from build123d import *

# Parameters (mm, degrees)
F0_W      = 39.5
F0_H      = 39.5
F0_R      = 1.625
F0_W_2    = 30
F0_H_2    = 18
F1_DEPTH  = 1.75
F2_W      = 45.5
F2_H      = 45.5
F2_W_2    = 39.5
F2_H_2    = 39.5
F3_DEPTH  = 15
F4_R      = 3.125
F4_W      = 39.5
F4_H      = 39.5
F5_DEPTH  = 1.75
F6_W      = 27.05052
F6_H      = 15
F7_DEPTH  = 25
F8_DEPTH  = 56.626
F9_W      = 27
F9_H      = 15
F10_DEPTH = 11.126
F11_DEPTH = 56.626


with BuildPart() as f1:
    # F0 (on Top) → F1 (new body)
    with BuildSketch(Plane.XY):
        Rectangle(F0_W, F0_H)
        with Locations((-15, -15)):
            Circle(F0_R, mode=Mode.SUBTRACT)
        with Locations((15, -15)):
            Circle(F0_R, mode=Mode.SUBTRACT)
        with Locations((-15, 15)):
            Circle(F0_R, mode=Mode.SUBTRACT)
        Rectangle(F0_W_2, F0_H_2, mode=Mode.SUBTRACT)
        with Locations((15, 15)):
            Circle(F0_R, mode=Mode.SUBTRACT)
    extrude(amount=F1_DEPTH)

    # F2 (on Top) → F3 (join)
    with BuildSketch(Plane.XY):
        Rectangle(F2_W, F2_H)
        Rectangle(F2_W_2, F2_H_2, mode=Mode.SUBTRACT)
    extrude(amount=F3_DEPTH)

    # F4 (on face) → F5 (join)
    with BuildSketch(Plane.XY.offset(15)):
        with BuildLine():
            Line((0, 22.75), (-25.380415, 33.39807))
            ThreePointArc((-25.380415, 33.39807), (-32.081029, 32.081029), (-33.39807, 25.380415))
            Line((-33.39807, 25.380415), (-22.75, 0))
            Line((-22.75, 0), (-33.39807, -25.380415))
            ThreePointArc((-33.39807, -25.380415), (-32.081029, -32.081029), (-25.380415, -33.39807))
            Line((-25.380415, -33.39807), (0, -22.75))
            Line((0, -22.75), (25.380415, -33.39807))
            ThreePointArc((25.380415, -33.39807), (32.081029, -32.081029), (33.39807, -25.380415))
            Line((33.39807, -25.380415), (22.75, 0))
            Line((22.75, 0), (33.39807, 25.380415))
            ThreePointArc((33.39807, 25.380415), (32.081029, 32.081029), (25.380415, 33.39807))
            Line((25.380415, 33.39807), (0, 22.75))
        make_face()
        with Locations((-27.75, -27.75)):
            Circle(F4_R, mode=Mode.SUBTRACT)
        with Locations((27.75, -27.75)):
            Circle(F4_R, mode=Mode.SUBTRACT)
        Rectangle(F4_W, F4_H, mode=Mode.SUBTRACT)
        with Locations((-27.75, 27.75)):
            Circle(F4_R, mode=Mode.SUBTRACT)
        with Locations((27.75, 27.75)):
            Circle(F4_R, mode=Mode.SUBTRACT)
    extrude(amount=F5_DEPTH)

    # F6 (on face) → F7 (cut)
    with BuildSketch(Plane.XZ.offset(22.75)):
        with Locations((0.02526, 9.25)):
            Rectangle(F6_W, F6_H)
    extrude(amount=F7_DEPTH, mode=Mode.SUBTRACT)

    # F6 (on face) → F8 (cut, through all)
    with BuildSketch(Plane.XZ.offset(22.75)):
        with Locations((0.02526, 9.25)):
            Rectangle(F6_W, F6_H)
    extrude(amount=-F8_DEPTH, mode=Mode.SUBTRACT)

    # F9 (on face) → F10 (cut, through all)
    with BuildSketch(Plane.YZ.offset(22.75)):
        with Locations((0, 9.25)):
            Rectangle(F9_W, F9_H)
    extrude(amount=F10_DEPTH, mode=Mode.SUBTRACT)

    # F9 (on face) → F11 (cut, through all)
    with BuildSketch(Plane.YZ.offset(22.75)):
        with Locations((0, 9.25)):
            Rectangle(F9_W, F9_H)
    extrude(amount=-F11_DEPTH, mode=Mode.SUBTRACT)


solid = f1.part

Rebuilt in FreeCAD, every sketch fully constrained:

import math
import FreeCAD as App
import Part
import Sketcher

doc = App.newDocument("Part")
body = doc.addObject("PartDesign::Body", "Body")

sketch1 = body.newObject("Sketcher::SketchObject", "Sketch")
sketch1.AttachmentSupport = (doc.getObject("XY_Plane"), [""])
sketch1.MapMode = "FlatFace"
sketch1.addGeometry([
    Part.LineSegment(App.Vector(-19.8, 19.8, 0), App.Vector(-19.8, -19.8, 0)),
    Part.LineSegment(App.Vector(-19.8, -19.8, 0), App.Vector(19.8, -19.8, 0)),
    Part.LineSegment(App.Vector(19.8, -19.8, 0), App.Vector(19.8, 19.8, 0)),
    Part.LineSegment(App.Vector(19.8, 19.8, 0), App.Vector(-19.8, 19.8, 0)),
    Part.Circle(App.Vector(-15, -15, 0), App.Vector(0, 0, 1), 1.6),
    Part.Circle(App.Vector(15, -15, 0), App.Vector(0, 0, 1), 1.6),
    Part.Circle(App.Vector(-15, 15, 0), App.Vector(0, 0, 1), 1.6),
    Part.LineSegment(App.Vector(15, -9, 0), App.Vector(-15, -9, 0)),
    Part.LineSegment(App.Vector(-15, -9, 0), App.Vector(-15, 9, 0)),
    Part.LineSegment(App.Vector(-15, 9, 0), App.Vector(15, 9, 0)),
    Part.LineSegment(App.Vector(15, 9, 0), App.Vector(15, -9, 0)),
    Part.Circle(App.Vector(15, 15, 0), App.Vector(0, 0, 1), 1.6),
], False)
sketch1.addConstraint([
    Sketcher.Constraint("Coincident", 0, 2, 1, 1),
    Sketcher.Constraint("Coincident", 1, 2, 2, 1),
    Sketcher.Constraint("Coincident", 2, 2, 3, 1),
    Sketcher.Constraint("Coincident", 3, 2, 0, 1),
    Sketcher.Constraint("Coincident", 7, 2, 8, 1),
    Sketcher.Constraint("Coincident", 8, 2, 9, 1),
    Sketcher.Constraint("Coincident", 9, 2, 10, 1),
    Sketcher.Constraint("Coincident", 10, 2, 7, 1),
    Sketcher.Constraint("Vertical", 0),
    Sketcher.Constraint("Horizontal", 1),
    Sketcher.Constraint("Vertical", 2),
    Sketcher.Constraint("Horizontal", 3),
    Sketcher.Constraint("Horizontal", 7),
    Sketcher.Constraint("Vertical", 8),
    Sketcher.Constraint("Horizontal", 9),
    Sketcher.Constraint("Vertical", 10),
    Sketcher.Constraint("Equal", 4, 5),
    Sketcher.Constraint("Equal", 5, 6),
    Sketcher.Constraint("Equal", 6, 11),
    Sketcher.Constraint("Symmetric", 5, 3, 6, 3, -1, 1),
    Sketcher.Constraint("Symmetric", 4, 3, 11, 3, -1, 1),
    Sketcher.Constraint("Symmetric", 0, 2, 2, 2, -1, 1),
    Sketcher.Constraint("Symmetric", 7, 2, 9, 2, -1, 1),
    Sketcher.Constraint("Symmetric", 4, 3, 5, 3, -2),
    Sketcher.Constraint("Vertical", 6, 3, 7, 2),
    Sketcher.Constraint("Equal", 3, 0),
    Sketcher.Constraint("Diameter", 4, 3.25),
    Sketcher.Constraint("DistanceX", 7, 2, 7, 1, 30.0),
    Sketcher.Constraint("DistanceY", 8, 1, 8, 2, 18.0),
    Sketcher.Constraint("DistanceX", 1, 1, 1, 2, 39.5),
    Sketcher.Constraint("DistanceY", 4, 3, -1, 1, 15.0),
])
pad1 = body.newObject("PartDesign::Pad", "Pad")
pad1.Profile = sketch1
pad1.Length = 1.75

sketch2 = body.newObject("Sketcher::SketchObject", "Sketch001")
sketch2.AttachmentSupport = (doc.getObject("XY_Plane"), [""])
sketch2.MapMode = "FlatFace"
sketch2.addGeometry([
    Part.LineSegment(App.Vector(-23, 23, 0), App.Vector(-23, -23, 0)),
    Part.LineSegment(App.Vector(-23, -23, 0), App.Vector(23, -23, 0)),
    Part.LineSegment(App.Vector(23, -23, 0), App.Vector(23, 23, 0)),
    Part.LineSegment(App.Vector(23, 23, 0), App.Vector(-23, 23, 0)),
    Part.LineSegment(App.Vector(20, -20, 0), App.Vector(-20, -20, 0)),
    Part.LineSegment(App.Vector(-20, -20, 0), App.Vector(-20, 20, 0)),
    Part.LineSegment(App.Vector(-20, 20, 0), App.Vector(20, 20, 0)),
    Part.LineSegment(App.Vector(20, 20, 0), App.Vector(20, -20, 0)),
], False)
sketch2.addConstraint([
    Sketcher.Constraint("Coincident", 0, 2, 1, 1),
    Sketcher.Constraint("Coincident", 1, 2, 2, 1),
    Sketcher.Constraint("Coincident", 2, 2, 3, 1),
    Sketcher.Constraint("Coincident", 3, 2, 0, 1),
    Sketcher.Constraint("Coincident", 4, 2, 5, 1),
    Sketcher.Constraint("Coincident", 5, 2, 6, 1),
    Sketcher.Constraint("Coincident", 6, 2, 7, 1),
    Sketcher.Constraint("Coincident", 7, 2, 4, 1),
    Sketcher.Constraint("Vertical", 0),
    Sketcher.Constraint("Horizontal", 1),
    Sketcher.Constraint("Vertical", 2),
    Sketcher.Constraint("Horizontal", 3),
    Sketcher.Constraint("Horizontal", 4),
    Sketcher.Constraint("Vertical", 5),
    Sketcher.Constraint("Horizontal", 6),
    Sketcher.Constraint("Vertical", 7),
    Sketcher.Constraint("Symmetric", 0, 2, 2, 2, -1, 1),
    Sketcher.Constraint("Symmetric", 4, 2, 6, 2, -1, 1),
    Sketcher.Constraint("Equal", 3, 0),
    Sketcher.Constraint("Equal", 6, 5),
    Sketcher.Constraint("DistanceX", 1, 1, 1, 2, 45.5),
    Sketcher.Constraint("DistanceX", 4, 2, 4, 1, 39.5),
])
pad2 = body.newObject("PartDesign::Pad", "Pad001")
pad2.Profile = sketch2
pad2.Length = 15

sketch3 = body.newObject("Sketcher::SketchObject", "Sketch002")
sketch3.AttachmentSupport = (doc.getObject("XY_Plane"), [""])
sketch3.MapMode = "FlatFace"
sketch3.AttachmentOffset = App.Placement(App.Vector(0, 0, 15), App.Rotation())
sketch3.addGeometry([
    Part.LineSegment(App.Vector(0, 22.8, 0), App.Vector(-25.4, 33.4, 0)),
    Part.ArcOfCircle(Part.Circle(App.Vector(-27.7, 27.7, 0), App.Vector(0, 0, 1), 6.1), math.radians(67), math.radians(203)),
    Part.LineSegment(App.Vector(-33.4, 25.4, 0), App.Vector(-22.8, 0, 0)),
    Part.LineSegment(App.Vector(-22.8, 0, 0), App.Vector(-33.4, -25.4, 0)),
    Part.ArcOfCircle(Part.Circle(App.Vector(-27.7, -27.7, 0), App.Vector(0, 0, 1), 6.1), math.radians(157), math.radians(293)),
    Part.LineSegment(App.Vector(-25.4, -33.4, 0), App.Vector(0, -22.8, 0)),
    Part.LineSegment(App.Vector(0, -22.8, 0), App.Vector(25.4, -33.4, 0)),
    Part.ArcOfCircle(Part.Circle(App.Vector(27.7, -27.7, 0), App.Vector(0, 0, 1), 6.1), math.radians(-113), math.radians(23)),
    Part.LineSegment(App.Vector(33.4, -25.4, 0), App.Vector(22.8, 0, 0)),
    Part.LineSegment(App.Vector(22.8, 0, 0), App.Vector(33.4, 25.4, 0)),
    Part.ArcOfCircle(Part.Circle(App.Vector(27.7, 27.7, 0), App.Vector(0, 0, 1), 6.1), math.radians(-23), math.radians(113)),
    Part.LineSegment(App.Vector(25.4, 33.4, 0), App.Vector(0, 22.8, 0)),
    Part.Circle(App.Vector(-27.8, -27.8, 0), App.Vector(0, 0, 1), 3.1),
    Part.Circle(App.Vector(27.8, -27.8, 0), App.Vector(0, 0, 1), 3.1),
    Part.Circle(App.Vector(-27.8, 27.8, 0), App.Vector(0, 0, 1), 3.1),
    Part.LineSegment(App.Vector(19.8, -19.8, 0), App.Vector(-19.8, -19.8, 0)),
    Part.LineSegment(App.Vector(-19.8, -19.8, 0), App.Vector(-19.8, 19.8, 0)),
    Part.LineSegment(App.Vector(-19.8, 19.8, 0), App.Vector(19.8, 19.8, 0)),
    Part.LineSegment(App.Vector(19.8, 19.8, 0), App.Vector(19.8, -19.8, 0)),
    Part.Circle(App.Vector(27.8, 27.8, 0), App.Vector(0, 0, 1), 3.1),
], False)
sketch3.addConstraint([
    Sketcher.Constraint("Tangent", 0, 2, 1, 1),
    Sketcher.Constraint("Tangent", 1, 2, 2, 1),
    Sketcher.Constraint("Coincident", 2, 2, 3, 1),
    Sketcher.Constraint("Tangent", 3, 2, 4, 1),
    Sketcher.Constraint("Tangent", 4, 2, 5, 1),
    Sketcher.Constraint("Coincident", 5, 2, 6, 1),
    Sketcher.Constraint("Tangent", 6, 2, 7, 1),
    Sketcher.Constraint("Tangent", 7, 2, 8, 1),
    Sketcher.Constraint("Coincident", 8, 2, 9, 1),
    Sketcher.Constraint("Tangent", 9, 2, 10, 1),
    Sketcher.Constraint("Tangent", 10, 2, 11, 1),
    Sketcher.Constraint("Coincident", 11, 2, 0, 1),
    Sketcher.Constraint("Coincident", 15, 2, 16, 1),
    Sketcher.Constraint("Coincident", 16, 2, 17, 1),
    Sketcher.Constraint("Coincident", 17, 2, 18, 1),
    Sketcher.Constraint("Coincident", 18, 2, 15, 1),
    Sketcher.Constraint("Horizontal", 15),
    Sketcher.Constraint("Vertical", 16),
    Sketcher.Constraint("Horizontal", 17),
    Sketcher.Constraint("Vertical", 18),
    Sketcher.Constraint("Coincident", 12, 3, 4, 3),
    Sketcher.Constraint("Coincident", 13, 3, 7, 3),
    Sketcher.Constraint("Coincident", 14, 3, 1, 3),
    Sketcher.Constraint("Coincident", 19, 3, 10, 3),
    Sketcher.Constraint("Equal", 1, 4),
    Sketcher.Constraint("Equal", 4, 7),
    Sketcher.Constraint("Equal", 7, 10),
    Sketcher.Constraint("Equal", 12, 13),
    Sketcher.Constraint("Equal", 13, 14),
    Sketcher.Constraint("Equal", 14, 19),
    Sketcher.Constraint("Symmetric", 1, 3, 7, 3, -1, 1),
    Sketcher.Constraint("Symmetric", 4, 3, 10, 3, -1, 1),
    Sketcher.Constraint("Symmetric", 2, 2, 8, 2, -1, 1),
    Sketcher.Constraint("Symmetric", 5, 2, 11, 2, -1, 1),
    Sketcher.Constraint("Symmetric", 15, 2, 17, 2, -1, 1),
    Sketcher.Constraint("Symmetric", 4, 3, 7, 3, -2),
    Sketcher.Constraint("PointOnObject", 2, 2, -1),
    Sketcher.Constraint("PointOnObject", 5, 2, -2),
    Sketcher.Constraint("Perpendicular", 0, 3),
    Sketcher.Constraint("Equal", 17, 16),
    Sketcher.Constraint("Equal", 0, 2),
    Sketcher.Constraint("Diameter", 12, 6.25),
    Sketcher.Constraint("DistanceX", 15, 2, 15, 1, 39.5),
    Sketcher.Constraint("Radius", 1, 6.125),
    Sketcher.Constraint("DistanceX", 1, 3, 2, 2, 5.0),
    Sketcher.Constraint("DistanceX", 4, 3, 15, 2, 8.0),
])
pad3 = body.newObject("PartDesign::Pad", "Pad002")
pad3.Profile = sketch3
pad3.Length = 1.75

sketch4 = body.newObject("Sketcher::SketchObject", "Sketch003")
sketch4.AttachmentSupport = (doc.getObject("XZ_Plane"), [""])
sketch4.MapMode = "FlatFace"
sketch4.AttachmentOffset = App.Placement(App.Vector(0, 0, 22.75), App.Rotation())
sketch4.addGeometry([
    Part.LineSegment(App.Vector(-14, 17, 0), App.Vector(-14, 2, 0)),
    Part.LineSegment(App.Vector(-14, 2, 0), App.Vector(14, 2, 0)),
    Part.LineSegment(App.Vector(14, 2, 0), App.Vector(14, 17, 0)),
    Part.LineSegment(App.Vector(14, 17, 0), App.Vector(-14, 17, 0)),
], False)
sketch4.addConstraint([
    Sketcher.Constraint("Coincident", 0, 2, 1, 1),
    Sketcher.Constraint("Coincident", 1, 2, 2, 1),
    Sketcher.Constraint("Coincident", 2, 2, 3, 1),
    Sketcher.Constraint("Coincident", 3, 2, 0, 1),
    Sketcher.Constraint("Vertical", 0),
    Sketcher.Constraint("Horizontal", 1),
    Sketcher.Constraint("Vertical", 2),
    Sketcher.Constraint("Horizontal", 3),
    Sketcher.Constraint("DistanceY", 0, 2, 0, 1, 15.0),
    Sketcher.Constraint("DistanceX", 0, 2, -1, 1, 13.5),
    Sketcher.Constraint("DistanceY", -1, 1, 0, 2, 1.75),
    Sketcher.Constraint("DistanceX", 1, 1, 1, 2, 27.05052),
])
pocket1 = body.newObject("PartDesign::Pocket", "Pocket")
pocket1.Profile = sketch4
pocket1.Length = 25
pocket1.Reversed = True

sketch5 = body.newObject("Sketcher::SketchObject", "Sketch004")
sketch5.AttachmentSupport = (doc.getObject("XZ_Plane"), [""])
sketch5.MapMode = "FlatFace"
sketch5.AttachmentOffset = App.Placement(App.Vector(0, 0, 22.75), App.Rotation())
sketch5.addGeometry([
    Part.LineSegment(App.Vector(-14, 17, 0), App.Vector(-14, 2, 0)),
    Part.LineSegment(App.Vector(-14, 2, 0), App.Vector(14, 2, 0)),
    Part.LineSegment(App.Vector(14, 2, 0), App.Vector(14, 17, 0)),
    Part.LineSegment(App.Vector(14, 17, 0), App.Vector(-14, 17, 0)),
], False)
sketch5.addConstraint([
    Sketcher.Constraint("Coincident", 0, 2, 1, 1),
    Sketcher.Constraint("Coincident", 1, 2, 2, 1),
    Sketcher.Constraint("Coincident", 2, 2, 3, 1),
    Sketcher.Constraint("Coincident", 3, 2, 0, 1),
    Sketcher.Constraint("Vertical", 0),
    Sketcher.Constraint("Horizontal", 1),
    Sketcher.Constraint("Vertical", 2),
    Sketcher.Constraint("Horizontal", 3),
    Sketcher.Constraint("DistanceY", 0, 2, 0, 1, 15.0),
    Sketcher.Constraint("DistanceX", 0, 2, -1, 1, 13.5),
    Sketcher.Constraint("DistanceY", -1, 1, 0, 2, 1.75),
    Sketcher.Constraint("DistanceX", 1, 1, 1, 2, 27.05052),
])
pocket2 = body.newObject("PartDesign::Pocket", "Pocket001")
pocket2.Profile = sketch5
pocket2.Type = "ThroughAll"

sketch6 = body.newObject("Sketcher::SketchObject", "Sketch005")
sketch6.AttachmentSupport = (doc.getObject("YZ_Plane"), [""])
sketch6.MapMode = "FlatFace"
sketch6.AttachmentOffset = App.Placement(App.Vector(0, 0, 22.75), App.Rotation())
sketch6.addGeometry([
    Part.LineSegment(App.Vector(-14, 17, 0), App.Vector(-14, 2, 0)),
    Part.LineSegment(App.Vector(-14, 2, 0), App.Vector(14, 2, 0)),
    Part.LineSegment(App.Vector(14, 2, 0), App.Vector(14, 17, 0)),
    Part.LineSegment(App.Vector(14, 17, 0), App.Vector(-14, 17, 0)),
], False)
sketch6.addConstraint([
    Sketcher.Constraint("Coincident", 0, 2, 1, 1),
    Sketcher.Constraint("Coincident", 1, 2, 2, 1),
    Sketcher.Constraint("Coincident", 2, 2, 3, 1),
    Sketcher.Constraint("Coincident", 3, 2, 0, 1),
    Sketcher.Constraint("Vertical", 0),
    Sketcher.Constraint("Horizontal", 1),
    Sketcher.Constraint("Vertical", 2),
    Sketcher.Constraint("Horizontal", 3),
    Sketcher.Constraint("DistanceX", 1, 1, 1, 2, 27.0),
    Sketcher.Constraint("DistanceY", 0, 2, 0, 1, 15.0),
    Sketcher.Constraint("DistanceX", 0, 2, -1, 1, 13.5),
    Sketcher.Constraint("DistanceY", -1, 1, 0, 2, 1.75),
])
pocket3 = body.newObject("PartDesign::Pocket", "Pocket002")
pocket3.Profile = sketch6
pocket3.Type = "ThroughAll"
pocket3.Reversed = True

sketch7 = body.newObject("Sketcher::SketchObject", "Sketch006")
sketch7.AttachmentSupport = (doc.getObject("YZ_Plane"), [""])
sketch7.MapMode = "FlatFace"
sketch7.AttachmentOffset = App.Placement(App.Vector(0, 0, 22.75), App.Rotation())
sketch7.addGeometry([
    Part.LineSegment(App.Vector(-14, 17, 0), App.Vector(-14, 2, 0)),
    Part.LineSegment(App.Vector(-14, 2, 0), App.Vector(14, 2, 0)),
    Part.LineSegment(App.Vector(14, 2, 0), App.Vector(14, 17, 0)),
    Part.LineSegment(App.Vector(14, 17, 0), App.Vector(-14, 17, 0)),
], False)
sketch7.addConstraint([
    Sketcher.Constraint("Coincident", 0, 2, 1, 1),
    Sketcher.Constraint("Coincident", 1, 2, 2, 1),
    Sketcher.Constraint("Coincident", 2, 2, 3, 1),
    Sketcher.Constraint("Coincident", 3, 2, 0, 1),
    Sketcher.Constraint("Vertical", 0),
    Sketcher.Constraint("Horizontal", 1),
    Sketcher.Constraint("Vertical", 2),
    Sketcher.Constraint("Horizontal", 3),
    Sketcher.Constraint("DistanceX", 1, 1, 1, 2, 27.0),
    Sketcher.Constraint("DistanceY", 0, 2, 0, 1, 15.0),
    Sketcher.Constraint("DistanceX", 0, 2, -1, 1, 13.5),
    Sketcher.Constraint("DistanceY", -1, 1, 0, 2, 1.75),
])
pocket4 = body.newObject("PartDesign::Pocket", "Pocket003")
pocket4.Profile = sketch7
pocket4.Type = "ThroughAll"

doc.recompute()
